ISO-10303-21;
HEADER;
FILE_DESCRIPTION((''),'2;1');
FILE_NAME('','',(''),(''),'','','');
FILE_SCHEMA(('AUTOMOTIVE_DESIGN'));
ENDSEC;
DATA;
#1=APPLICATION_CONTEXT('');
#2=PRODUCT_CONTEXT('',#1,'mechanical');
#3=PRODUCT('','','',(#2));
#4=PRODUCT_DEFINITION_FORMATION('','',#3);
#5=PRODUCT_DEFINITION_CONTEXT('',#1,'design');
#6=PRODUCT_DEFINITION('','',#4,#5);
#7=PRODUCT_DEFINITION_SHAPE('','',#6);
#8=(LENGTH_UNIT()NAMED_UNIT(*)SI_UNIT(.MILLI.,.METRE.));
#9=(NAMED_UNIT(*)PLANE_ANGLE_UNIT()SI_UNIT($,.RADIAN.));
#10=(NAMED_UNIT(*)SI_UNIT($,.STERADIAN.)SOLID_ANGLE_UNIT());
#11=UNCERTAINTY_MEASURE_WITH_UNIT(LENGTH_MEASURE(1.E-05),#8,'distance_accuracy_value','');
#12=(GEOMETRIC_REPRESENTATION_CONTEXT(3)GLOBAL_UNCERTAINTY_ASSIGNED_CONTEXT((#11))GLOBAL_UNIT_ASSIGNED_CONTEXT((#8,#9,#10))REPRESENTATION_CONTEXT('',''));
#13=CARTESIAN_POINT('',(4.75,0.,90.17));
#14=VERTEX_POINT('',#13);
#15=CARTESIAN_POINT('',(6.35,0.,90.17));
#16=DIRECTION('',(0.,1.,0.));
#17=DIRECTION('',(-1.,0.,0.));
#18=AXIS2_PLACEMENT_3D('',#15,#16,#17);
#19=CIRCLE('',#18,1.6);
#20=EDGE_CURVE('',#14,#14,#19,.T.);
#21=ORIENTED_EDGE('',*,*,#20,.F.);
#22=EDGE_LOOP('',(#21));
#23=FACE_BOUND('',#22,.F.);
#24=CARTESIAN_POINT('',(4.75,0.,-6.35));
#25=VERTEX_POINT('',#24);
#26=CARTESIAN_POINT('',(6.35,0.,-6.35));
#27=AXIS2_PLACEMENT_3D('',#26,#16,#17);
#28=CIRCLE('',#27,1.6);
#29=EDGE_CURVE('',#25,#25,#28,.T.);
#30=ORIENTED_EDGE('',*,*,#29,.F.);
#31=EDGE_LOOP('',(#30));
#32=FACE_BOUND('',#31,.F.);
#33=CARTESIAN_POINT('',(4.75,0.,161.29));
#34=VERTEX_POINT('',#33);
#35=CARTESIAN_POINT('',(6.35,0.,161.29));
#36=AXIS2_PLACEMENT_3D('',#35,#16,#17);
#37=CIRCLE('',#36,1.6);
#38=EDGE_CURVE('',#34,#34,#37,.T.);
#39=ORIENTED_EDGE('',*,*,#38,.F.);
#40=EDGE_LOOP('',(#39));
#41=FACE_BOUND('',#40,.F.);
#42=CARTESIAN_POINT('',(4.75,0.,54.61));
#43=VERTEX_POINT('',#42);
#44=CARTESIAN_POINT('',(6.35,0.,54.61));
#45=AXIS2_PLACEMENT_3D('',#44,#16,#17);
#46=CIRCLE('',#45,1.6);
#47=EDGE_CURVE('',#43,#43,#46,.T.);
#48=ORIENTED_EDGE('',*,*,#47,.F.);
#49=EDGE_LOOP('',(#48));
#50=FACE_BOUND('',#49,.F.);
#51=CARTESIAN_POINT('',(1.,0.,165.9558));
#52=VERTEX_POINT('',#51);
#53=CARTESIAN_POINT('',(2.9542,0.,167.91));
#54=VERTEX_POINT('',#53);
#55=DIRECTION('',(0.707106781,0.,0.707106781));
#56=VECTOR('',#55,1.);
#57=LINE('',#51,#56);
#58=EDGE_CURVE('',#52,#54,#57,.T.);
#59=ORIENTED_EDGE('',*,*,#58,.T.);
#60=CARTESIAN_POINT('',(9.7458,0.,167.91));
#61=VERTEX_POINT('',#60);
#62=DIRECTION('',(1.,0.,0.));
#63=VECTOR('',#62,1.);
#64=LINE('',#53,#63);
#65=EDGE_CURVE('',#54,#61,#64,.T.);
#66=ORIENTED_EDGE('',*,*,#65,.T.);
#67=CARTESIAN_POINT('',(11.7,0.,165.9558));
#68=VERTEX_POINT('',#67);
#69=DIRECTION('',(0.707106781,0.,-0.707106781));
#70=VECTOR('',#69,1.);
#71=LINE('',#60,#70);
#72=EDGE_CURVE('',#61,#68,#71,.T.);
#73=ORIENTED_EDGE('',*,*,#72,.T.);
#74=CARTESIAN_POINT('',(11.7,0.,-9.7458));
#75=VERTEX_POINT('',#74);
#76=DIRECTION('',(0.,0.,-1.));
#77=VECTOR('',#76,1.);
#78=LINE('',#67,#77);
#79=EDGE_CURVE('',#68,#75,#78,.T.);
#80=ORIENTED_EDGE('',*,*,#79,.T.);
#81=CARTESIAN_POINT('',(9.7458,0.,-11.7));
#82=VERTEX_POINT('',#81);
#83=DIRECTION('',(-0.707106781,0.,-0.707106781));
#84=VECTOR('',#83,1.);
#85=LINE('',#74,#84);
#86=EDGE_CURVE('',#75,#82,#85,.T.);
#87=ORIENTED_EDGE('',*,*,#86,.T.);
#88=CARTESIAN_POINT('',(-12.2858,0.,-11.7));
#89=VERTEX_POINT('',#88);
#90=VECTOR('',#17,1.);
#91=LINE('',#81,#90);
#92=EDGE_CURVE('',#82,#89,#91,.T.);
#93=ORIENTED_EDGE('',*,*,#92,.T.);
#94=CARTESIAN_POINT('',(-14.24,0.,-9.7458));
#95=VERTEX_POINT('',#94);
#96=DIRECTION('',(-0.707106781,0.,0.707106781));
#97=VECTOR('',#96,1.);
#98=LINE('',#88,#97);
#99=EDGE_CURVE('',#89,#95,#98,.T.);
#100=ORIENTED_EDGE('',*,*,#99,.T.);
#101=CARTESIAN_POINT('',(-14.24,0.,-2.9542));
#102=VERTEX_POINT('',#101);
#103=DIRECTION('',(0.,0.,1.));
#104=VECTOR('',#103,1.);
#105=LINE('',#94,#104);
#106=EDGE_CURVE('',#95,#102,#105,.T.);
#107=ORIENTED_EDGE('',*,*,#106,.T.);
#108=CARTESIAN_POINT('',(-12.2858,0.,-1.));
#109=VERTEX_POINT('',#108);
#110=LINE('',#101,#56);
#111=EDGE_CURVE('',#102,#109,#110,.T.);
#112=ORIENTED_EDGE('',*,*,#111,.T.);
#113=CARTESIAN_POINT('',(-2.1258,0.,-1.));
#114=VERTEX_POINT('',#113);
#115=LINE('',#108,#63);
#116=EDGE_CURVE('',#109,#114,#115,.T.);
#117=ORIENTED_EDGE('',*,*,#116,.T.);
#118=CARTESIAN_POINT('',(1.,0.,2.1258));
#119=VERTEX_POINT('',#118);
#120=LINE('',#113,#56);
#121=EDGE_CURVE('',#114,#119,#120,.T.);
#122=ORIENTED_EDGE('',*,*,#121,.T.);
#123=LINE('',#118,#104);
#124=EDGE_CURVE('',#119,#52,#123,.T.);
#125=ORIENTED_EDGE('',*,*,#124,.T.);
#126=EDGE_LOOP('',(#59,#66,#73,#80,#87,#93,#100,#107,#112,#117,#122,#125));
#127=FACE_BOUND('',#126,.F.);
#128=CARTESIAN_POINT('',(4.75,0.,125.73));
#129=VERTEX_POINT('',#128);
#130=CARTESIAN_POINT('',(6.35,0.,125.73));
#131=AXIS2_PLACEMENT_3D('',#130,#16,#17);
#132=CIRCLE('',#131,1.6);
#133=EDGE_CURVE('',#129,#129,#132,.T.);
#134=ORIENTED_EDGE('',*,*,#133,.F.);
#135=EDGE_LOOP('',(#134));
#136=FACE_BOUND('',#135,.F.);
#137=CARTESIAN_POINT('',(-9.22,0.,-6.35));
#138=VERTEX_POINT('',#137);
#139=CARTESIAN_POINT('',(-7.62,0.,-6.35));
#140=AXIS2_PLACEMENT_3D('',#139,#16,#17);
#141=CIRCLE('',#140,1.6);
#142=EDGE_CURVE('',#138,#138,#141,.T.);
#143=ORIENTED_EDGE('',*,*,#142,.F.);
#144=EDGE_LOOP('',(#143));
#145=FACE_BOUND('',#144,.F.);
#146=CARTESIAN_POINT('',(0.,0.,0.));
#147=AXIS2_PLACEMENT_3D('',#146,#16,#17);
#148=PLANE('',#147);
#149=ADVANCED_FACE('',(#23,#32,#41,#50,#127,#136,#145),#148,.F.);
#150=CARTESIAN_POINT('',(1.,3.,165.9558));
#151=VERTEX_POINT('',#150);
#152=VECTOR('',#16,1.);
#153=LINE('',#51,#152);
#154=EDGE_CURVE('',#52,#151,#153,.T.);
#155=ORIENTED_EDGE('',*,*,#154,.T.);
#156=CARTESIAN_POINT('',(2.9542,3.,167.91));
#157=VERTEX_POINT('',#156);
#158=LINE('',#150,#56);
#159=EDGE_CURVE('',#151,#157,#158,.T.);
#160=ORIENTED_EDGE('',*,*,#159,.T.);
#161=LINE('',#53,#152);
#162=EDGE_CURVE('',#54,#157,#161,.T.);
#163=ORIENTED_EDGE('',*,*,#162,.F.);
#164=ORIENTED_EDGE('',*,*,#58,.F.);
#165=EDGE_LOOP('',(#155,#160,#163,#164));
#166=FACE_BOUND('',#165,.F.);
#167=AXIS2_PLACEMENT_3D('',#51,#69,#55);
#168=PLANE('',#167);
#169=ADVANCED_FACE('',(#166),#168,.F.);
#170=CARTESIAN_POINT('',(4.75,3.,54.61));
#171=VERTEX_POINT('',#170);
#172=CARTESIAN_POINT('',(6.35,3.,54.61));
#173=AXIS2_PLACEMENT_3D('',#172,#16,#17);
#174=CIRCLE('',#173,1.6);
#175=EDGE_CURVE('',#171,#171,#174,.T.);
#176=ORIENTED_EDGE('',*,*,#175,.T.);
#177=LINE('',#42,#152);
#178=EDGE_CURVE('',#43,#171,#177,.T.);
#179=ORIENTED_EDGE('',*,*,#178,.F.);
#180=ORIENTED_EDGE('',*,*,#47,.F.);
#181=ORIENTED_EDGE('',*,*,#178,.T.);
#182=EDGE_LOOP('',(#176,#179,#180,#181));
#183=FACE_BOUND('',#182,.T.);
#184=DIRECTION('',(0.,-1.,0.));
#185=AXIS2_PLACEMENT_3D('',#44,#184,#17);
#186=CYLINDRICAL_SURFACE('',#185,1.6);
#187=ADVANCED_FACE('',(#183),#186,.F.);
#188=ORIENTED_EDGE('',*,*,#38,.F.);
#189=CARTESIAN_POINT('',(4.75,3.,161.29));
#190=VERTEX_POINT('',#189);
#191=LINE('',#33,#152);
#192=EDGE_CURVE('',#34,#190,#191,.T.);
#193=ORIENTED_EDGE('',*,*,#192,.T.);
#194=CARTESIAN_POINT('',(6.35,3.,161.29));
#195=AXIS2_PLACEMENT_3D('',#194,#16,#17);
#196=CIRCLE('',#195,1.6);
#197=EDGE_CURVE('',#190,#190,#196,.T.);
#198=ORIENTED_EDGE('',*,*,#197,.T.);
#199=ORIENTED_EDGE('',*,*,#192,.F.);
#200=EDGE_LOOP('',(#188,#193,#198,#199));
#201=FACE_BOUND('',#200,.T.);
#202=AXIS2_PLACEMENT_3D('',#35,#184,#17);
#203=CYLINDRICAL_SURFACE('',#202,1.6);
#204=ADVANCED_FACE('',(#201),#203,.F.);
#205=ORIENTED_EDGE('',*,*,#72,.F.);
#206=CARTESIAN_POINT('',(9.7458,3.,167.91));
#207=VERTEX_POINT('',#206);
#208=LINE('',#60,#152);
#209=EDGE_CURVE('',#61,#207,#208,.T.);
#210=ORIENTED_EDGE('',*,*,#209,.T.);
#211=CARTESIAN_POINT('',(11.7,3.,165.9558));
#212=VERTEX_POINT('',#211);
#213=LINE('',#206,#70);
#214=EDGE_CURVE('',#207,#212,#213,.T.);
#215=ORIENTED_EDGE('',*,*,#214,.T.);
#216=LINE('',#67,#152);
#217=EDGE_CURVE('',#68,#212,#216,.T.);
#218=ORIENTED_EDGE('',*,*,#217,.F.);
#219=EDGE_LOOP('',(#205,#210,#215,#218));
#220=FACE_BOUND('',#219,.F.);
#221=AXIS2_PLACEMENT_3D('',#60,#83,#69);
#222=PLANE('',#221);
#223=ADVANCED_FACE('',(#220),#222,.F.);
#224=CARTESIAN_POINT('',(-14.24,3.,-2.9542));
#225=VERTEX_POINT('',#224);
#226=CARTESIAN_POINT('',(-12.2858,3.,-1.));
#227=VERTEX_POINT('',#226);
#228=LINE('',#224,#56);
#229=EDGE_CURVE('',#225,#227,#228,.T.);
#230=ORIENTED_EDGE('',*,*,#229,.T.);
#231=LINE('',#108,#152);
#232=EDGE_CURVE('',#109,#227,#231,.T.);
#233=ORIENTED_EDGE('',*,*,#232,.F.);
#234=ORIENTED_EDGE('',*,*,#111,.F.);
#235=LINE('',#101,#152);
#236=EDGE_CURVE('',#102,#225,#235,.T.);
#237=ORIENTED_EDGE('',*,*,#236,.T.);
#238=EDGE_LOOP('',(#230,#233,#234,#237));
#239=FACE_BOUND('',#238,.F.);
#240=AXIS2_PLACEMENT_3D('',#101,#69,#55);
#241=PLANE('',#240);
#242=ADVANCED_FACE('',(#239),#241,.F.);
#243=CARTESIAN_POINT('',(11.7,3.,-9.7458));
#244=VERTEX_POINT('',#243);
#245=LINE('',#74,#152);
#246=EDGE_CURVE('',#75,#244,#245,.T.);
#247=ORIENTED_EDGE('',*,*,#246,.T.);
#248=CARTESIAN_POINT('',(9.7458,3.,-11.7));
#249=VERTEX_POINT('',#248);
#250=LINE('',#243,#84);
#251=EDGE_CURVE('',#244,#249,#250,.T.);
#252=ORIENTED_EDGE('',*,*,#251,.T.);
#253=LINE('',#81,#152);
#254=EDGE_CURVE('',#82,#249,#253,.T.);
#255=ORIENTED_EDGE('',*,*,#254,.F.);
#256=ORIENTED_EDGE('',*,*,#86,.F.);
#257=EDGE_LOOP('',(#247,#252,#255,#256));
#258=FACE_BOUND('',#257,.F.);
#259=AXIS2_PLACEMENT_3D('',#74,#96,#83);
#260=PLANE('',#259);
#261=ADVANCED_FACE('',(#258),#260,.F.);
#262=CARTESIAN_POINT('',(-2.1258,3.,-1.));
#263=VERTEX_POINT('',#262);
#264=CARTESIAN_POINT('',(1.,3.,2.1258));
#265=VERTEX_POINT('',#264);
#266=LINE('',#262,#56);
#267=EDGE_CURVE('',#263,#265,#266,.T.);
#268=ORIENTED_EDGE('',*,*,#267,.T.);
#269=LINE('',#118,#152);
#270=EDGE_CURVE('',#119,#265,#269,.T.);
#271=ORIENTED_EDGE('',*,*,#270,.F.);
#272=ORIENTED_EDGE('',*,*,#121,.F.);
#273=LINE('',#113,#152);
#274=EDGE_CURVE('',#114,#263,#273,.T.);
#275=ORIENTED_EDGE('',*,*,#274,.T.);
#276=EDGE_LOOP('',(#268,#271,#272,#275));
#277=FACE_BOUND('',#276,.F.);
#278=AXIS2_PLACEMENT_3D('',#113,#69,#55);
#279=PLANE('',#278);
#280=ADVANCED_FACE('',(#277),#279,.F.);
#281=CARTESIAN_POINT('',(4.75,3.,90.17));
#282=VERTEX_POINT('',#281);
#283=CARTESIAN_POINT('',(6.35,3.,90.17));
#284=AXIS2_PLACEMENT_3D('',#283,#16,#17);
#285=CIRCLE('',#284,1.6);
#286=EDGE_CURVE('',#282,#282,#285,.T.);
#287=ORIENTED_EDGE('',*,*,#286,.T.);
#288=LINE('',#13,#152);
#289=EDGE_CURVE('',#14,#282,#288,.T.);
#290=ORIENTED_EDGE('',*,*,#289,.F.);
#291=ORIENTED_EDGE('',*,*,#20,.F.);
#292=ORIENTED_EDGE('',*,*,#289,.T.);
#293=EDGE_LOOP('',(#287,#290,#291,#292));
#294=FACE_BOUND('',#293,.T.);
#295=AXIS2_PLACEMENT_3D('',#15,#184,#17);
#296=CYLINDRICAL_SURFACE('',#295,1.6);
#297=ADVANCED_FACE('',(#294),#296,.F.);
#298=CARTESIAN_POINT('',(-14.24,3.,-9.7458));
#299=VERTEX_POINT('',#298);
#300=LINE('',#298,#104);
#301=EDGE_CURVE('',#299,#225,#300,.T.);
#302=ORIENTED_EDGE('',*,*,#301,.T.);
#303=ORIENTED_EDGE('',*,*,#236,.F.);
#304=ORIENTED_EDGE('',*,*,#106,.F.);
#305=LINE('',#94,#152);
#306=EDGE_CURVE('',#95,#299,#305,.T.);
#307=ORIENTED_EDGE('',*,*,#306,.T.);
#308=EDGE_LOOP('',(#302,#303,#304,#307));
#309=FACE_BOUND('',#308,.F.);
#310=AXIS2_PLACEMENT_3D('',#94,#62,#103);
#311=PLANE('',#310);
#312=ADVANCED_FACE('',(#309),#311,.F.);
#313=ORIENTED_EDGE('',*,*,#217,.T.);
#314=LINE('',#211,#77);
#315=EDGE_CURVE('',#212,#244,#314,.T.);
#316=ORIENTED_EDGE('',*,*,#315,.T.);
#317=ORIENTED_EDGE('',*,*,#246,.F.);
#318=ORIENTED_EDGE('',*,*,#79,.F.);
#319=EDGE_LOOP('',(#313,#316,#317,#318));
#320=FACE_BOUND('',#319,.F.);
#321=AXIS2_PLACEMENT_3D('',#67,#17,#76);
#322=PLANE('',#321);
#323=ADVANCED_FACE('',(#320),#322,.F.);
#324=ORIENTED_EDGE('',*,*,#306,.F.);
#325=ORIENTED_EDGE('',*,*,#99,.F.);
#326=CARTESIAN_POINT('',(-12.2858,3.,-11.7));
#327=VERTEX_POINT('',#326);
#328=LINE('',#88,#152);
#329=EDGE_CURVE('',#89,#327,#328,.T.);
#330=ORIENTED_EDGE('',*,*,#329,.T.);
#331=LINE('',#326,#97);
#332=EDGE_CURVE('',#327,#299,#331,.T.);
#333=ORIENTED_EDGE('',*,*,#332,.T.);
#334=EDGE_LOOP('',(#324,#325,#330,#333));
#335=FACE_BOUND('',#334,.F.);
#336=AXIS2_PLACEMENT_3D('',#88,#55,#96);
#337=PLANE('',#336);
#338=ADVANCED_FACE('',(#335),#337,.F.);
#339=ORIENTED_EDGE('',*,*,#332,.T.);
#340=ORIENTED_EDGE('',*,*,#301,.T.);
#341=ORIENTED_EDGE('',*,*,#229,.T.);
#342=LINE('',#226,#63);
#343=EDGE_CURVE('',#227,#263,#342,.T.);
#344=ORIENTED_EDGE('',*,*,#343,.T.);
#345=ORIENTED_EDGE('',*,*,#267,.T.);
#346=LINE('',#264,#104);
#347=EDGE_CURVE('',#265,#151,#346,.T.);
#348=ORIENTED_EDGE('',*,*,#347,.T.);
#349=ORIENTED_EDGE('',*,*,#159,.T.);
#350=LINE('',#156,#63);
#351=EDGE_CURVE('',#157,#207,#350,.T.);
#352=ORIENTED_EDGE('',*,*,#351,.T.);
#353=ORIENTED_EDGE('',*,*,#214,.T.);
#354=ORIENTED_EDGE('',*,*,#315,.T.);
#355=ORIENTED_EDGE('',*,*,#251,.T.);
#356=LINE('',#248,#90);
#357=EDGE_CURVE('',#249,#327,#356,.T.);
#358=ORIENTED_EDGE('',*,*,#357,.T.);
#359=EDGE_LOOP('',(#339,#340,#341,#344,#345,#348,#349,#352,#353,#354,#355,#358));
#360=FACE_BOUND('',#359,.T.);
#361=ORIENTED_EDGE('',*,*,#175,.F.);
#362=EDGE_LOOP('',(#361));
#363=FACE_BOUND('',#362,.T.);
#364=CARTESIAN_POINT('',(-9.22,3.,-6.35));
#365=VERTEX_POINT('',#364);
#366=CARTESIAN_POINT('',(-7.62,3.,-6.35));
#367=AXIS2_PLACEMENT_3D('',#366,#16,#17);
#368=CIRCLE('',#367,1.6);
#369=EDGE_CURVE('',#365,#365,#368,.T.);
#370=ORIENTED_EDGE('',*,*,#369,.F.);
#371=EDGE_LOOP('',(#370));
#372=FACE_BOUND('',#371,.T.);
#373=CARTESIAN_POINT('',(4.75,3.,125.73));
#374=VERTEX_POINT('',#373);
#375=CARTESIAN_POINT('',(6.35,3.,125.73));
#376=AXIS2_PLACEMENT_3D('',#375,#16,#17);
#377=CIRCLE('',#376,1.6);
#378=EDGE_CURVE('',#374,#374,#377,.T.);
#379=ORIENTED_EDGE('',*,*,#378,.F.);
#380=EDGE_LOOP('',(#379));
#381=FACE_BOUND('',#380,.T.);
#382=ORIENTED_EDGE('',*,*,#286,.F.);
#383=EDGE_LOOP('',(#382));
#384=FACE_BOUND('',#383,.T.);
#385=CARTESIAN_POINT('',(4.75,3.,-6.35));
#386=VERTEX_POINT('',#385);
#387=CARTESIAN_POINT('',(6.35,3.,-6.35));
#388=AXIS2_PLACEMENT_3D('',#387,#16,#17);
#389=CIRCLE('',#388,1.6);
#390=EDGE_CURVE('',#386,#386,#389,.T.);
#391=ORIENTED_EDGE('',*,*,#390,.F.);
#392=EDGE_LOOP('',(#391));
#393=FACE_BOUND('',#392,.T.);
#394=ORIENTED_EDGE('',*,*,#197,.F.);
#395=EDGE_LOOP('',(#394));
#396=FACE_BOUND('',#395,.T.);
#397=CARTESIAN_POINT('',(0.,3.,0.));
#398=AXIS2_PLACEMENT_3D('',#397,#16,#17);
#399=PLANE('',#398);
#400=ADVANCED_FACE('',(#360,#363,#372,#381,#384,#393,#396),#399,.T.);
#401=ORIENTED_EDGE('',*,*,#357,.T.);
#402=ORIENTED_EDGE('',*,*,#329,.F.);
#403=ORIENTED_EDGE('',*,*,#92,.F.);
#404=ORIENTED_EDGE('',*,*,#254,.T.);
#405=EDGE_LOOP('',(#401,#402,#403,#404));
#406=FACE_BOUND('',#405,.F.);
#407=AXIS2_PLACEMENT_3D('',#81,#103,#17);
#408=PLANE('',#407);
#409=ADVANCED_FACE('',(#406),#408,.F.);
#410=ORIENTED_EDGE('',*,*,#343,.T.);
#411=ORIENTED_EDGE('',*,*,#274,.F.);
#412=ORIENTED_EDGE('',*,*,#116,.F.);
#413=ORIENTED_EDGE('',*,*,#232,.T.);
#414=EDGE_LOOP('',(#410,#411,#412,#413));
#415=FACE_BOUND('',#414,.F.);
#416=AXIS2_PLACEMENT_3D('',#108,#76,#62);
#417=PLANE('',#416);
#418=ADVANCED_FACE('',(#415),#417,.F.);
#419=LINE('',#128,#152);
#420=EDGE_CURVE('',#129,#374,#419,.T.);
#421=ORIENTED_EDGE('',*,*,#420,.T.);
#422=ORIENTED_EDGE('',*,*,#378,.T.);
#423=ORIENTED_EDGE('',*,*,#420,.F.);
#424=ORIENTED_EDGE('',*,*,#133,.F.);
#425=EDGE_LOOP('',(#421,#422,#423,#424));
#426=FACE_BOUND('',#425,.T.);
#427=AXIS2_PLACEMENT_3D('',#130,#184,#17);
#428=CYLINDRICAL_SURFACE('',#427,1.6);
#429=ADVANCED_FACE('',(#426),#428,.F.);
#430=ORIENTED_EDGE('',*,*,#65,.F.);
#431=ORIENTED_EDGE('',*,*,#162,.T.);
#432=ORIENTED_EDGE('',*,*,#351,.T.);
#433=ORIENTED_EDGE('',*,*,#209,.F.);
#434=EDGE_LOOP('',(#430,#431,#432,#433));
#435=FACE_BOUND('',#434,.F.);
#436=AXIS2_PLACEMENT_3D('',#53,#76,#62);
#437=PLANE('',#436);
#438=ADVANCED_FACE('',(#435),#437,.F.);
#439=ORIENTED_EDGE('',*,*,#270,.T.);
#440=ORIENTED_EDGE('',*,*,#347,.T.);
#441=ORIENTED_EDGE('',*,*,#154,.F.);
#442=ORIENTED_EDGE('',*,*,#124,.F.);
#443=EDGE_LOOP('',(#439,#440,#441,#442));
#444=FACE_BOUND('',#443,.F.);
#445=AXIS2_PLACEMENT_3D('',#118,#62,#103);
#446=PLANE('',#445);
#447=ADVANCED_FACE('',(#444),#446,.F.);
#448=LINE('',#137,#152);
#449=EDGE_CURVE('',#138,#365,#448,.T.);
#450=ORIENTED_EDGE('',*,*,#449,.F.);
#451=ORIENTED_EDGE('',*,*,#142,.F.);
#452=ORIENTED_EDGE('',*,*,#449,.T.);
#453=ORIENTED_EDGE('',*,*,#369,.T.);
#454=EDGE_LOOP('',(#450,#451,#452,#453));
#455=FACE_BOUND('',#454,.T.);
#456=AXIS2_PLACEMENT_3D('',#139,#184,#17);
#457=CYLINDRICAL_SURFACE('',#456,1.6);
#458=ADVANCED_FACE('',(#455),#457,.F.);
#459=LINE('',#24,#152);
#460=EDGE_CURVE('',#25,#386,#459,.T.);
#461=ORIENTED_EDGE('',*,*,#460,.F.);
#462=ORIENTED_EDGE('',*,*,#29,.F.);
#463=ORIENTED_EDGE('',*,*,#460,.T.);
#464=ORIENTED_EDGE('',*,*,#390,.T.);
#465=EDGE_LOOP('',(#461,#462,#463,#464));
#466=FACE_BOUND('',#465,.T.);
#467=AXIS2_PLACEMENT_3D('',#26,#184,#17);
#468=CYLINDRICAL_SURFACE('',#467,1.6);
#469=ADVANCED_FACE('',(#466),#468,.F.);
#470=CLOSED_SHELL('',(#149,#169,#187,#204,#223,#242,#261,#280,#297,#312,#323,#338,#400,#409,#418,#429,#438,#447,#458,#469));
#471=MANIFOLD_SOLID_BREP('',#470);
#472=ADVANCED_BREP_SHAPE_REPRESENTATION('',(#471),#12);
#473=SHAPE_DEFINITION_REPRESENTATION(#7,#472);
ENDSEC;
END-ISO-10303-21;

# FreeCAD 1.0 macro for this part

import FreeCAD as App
import Part
import Sketcher

V = App.Vector
Q = App.Units.Quantity


def add_polygon(sketch, points):
    """Adds a closed chain of lines whose ends are joined by coincident constraints."""
    first, n = sketch.GeometryCount, len(points)
    for a, b in zip(points, points[1:] + points[:1]):
        sketch.addGeometry(Part.LineSegment(App.Vector(*a, 0), App.Vector(*b, 0)), False)
    for i in range(n):
        sketch.addConstraint(Sketcher.Constraint("Coincident", first + i, 2, first + (i + 1) % n, 1))

doc = App.newDocument("Part")
params = doc.addObject("Spreadsheet::Sheet", "Params")
for row, (alias, value) in enumerate([
    ("sketch1_width", "0.4 in"),
    ("sketch1_height", "6.45 in"),
    ("pad1_length", "0.1181102 in"),
], start=1):
    params.set(f"A{row}", alias)
    params.set(f"B{row}", "=" + value)
    params.setAlias(f"B{row}", alias)

body = doc.addObject("PartDesign::Body", "Body")

# Sketch on XZ plane
sketch1 = body.newObject("Sketcher::SketchObject", "Sketch")
sketch1.AttachmentSupport = (doc.getObject("XZ_Plane"), [""])
sketch1.MapMode = "FlatFace"
add_polygon(sketch1, [(1, 2.1), (1, 166), (3, 167.9), (9.7, 167.9), (11.7, 166), (11.7, -9.7), (9.7, -11.7), (-12.3, -11.7), (-14.2, -9.7), (-14.2, -3), (-12.3, -1), (-2.1, -1)])  # lines 0-11
sketch1.addGeometry(Part.Circle(V(6.3, -6.3, 0), V(0, 0, 1), 1.6), False)  # 12
sketch1.addGeometry(Part.Circle(V(6.3, 54.6, 0), V(0, 0, 1), 1.6), False)  # 13
sketch1.addGeometry(Part.Circle(V(-7.6, -6.3, 0), V(0, 0, 1), 1.6), False)  # 14
sketch1.addGeometry(Part.Circle(V(6.3, 90.2, 0), V(0, 0, 1), 1.6), False)  # 15
sketch1.addGeometry(Part.Circle(V(6.3, 125.7, 0), V(0, 0, 1), 1.6), False)  # 16
sketch1.addGeometry(Part.Circle(V(6.3, 161.3, 0), V(0, 0, 1), 1.6), False)  # 17
sketch1.addConstraint(Sketcher.Constraint("Vertical", 0))
sketch1.addConstraint(Sketcher.Constraint("Horizontal", 2))
sketch1.addConstraint(Sketcher.Constraint("Vertical", 4))
sketch1.addConstraint(Sketcher.Constraint("Horizontal", 6))
sketch1.addConstraint(Sketcher.Constraint("Vertical", 8))
sketch1.addConstraint(Sketcher.Constraint("Horizontal", 10))
sketch1.addConstraint(Sketcher.Constraint("Equal", 12, 13))
sketch1.addConstraint(Sketcher.Constraint("Equal", 13, 14))
sketch1.addConstraint(Sketcher.Constraint("Equal", 14, 15))
sketch1.addConstraint(Sketcher.Constraint("Equal", 15, 16))
sketch1.addConstraint(Sketcher.Constraint("Equal", 16, 17))
sketch1.addConstraint(Sketcher.Constraint("Perpendicular", 1, 3))
sketch1.addConstraint(Sketcher.Constraint("Perpendicular", 3, 5))
sketch1.addConstraint(Sketcher.Constraint("Perpendicular", 5, 7))
sketch1.addConstraint(Sketcher.Constraint("Perpendicular", 7, 9))
sketch1.addConstraint(Sketcher.Constraint("Parallel", 9, 11))
sketch1.addConstraint(Sketcher.Constraint("Horizontal", 12, 3, 14, 3))
sketch1.addConstraint(Sketcher.Constraint("Horizontal", 0, 2, 3, 2))
sketch1.addConstraint(Sketcher.Constraint("Horizontal", 4, 2, 7, 2))
sketch1.addConstraint(Sketcher.Constraint("Vertical", 12, 3, 13, 3))
sketch1.addConstraint(Sketcher.Constraint("Vertical", 13, 3, 15, 3))
sketch1.addConstraint(Sketcher.Constraint("Vertical", 15, 3, 16, 3))
sketch1.addConstraint(Sketcher.Constraint("Vertical", 16, 3, 17, 3))
sketch1.addConstraint(Sketcher.Constraint("Vertical", 2, 2, 5, 2))
sketch1.addConstraint(Sketcher.Constraint("Vertical", 6, 2, 9, 2))
sketch1.addConstraint(Sketcher.Constraint("Equal", 2, 8))
sketch1.addConstraint(Sketcher.Constraint("Equal", 1, 3))
sketch1.addConstraint(Sketcher.Constraint("DistanceX", 14, 3, -1, 1, Q("0.3 in")))
sketch1.addConstraint(Sketcher.Constraint("DistanceY", 13, 3, 15, 3, Q("1.4 in")))
sketch1.addConstraint(Sketcher.Constraint("DistanceY", 15, 3, 16, 3, Q("1.4 in")))
sketch1.addConstraint(Sketcher.Constraint("DistanceY", 16, 3, 17, 3, Q("1.4 in")))
sketch1.addConstraint(Sketcher.Constraint("Diameter", 12, Q("3.2 mm")))
sketch1.addConstraint(Sketcher.Constraint("DistanceX", 10, 1, 10, 2, Q("0.4 in")))
sketch1.addConstraint(Sketcher.Constraint("DistanceY", 0, 1, 0, 2, Q("6.45 in")))
sketch1.addConstraint(Sketcher.Constraint("DistanceY", 12, 3, 13, 3, Q("2.4 in")))
sketch1.addConstraint(Sketcher.Constraint("DistanceX", -1, 1, 12, 3, Q("0.25 in")))
sketch1.addConstraint(Sketcher.Constraint("DistanceY", 12, 3, -1, 1, Q("0.25 in")))
sketch1.addConstraint(Sketcher.Constraint("DistanceX", -1, 1, 0, 2, Q("1 mm")))
sketch1.addConstraint(Sketcher.Constraint("DistanceY", 9, 2, -1, 1, Q("1 mm")))
sketch1.addConstraint(Sketcher.Constraint("Distance", 1, Q("0.1088 in")))
sketch1.addConstraint(Sketcher.Constraint("DistanceX", 2, 1, 2, 2, Q("6.7916 mm")))
sketch1.addConstraint(Sketcher.Constraint("DistanceX", 6, 2, 6, 1, Q("22.0316 mm")))
sketch1.setExpression("Constraints[44]", "Params.sketch1_width")
sketch1.setExpression("Constraints[45]", "Params.sketch1_height")
pad1 = body.newObject("PartDesign::Pad", "Pad")
pad1.Profile = sketch1
pad1.setExpression("Length", "Params.pad1_length")
pad1.Reversed = True

doc.recompute()
